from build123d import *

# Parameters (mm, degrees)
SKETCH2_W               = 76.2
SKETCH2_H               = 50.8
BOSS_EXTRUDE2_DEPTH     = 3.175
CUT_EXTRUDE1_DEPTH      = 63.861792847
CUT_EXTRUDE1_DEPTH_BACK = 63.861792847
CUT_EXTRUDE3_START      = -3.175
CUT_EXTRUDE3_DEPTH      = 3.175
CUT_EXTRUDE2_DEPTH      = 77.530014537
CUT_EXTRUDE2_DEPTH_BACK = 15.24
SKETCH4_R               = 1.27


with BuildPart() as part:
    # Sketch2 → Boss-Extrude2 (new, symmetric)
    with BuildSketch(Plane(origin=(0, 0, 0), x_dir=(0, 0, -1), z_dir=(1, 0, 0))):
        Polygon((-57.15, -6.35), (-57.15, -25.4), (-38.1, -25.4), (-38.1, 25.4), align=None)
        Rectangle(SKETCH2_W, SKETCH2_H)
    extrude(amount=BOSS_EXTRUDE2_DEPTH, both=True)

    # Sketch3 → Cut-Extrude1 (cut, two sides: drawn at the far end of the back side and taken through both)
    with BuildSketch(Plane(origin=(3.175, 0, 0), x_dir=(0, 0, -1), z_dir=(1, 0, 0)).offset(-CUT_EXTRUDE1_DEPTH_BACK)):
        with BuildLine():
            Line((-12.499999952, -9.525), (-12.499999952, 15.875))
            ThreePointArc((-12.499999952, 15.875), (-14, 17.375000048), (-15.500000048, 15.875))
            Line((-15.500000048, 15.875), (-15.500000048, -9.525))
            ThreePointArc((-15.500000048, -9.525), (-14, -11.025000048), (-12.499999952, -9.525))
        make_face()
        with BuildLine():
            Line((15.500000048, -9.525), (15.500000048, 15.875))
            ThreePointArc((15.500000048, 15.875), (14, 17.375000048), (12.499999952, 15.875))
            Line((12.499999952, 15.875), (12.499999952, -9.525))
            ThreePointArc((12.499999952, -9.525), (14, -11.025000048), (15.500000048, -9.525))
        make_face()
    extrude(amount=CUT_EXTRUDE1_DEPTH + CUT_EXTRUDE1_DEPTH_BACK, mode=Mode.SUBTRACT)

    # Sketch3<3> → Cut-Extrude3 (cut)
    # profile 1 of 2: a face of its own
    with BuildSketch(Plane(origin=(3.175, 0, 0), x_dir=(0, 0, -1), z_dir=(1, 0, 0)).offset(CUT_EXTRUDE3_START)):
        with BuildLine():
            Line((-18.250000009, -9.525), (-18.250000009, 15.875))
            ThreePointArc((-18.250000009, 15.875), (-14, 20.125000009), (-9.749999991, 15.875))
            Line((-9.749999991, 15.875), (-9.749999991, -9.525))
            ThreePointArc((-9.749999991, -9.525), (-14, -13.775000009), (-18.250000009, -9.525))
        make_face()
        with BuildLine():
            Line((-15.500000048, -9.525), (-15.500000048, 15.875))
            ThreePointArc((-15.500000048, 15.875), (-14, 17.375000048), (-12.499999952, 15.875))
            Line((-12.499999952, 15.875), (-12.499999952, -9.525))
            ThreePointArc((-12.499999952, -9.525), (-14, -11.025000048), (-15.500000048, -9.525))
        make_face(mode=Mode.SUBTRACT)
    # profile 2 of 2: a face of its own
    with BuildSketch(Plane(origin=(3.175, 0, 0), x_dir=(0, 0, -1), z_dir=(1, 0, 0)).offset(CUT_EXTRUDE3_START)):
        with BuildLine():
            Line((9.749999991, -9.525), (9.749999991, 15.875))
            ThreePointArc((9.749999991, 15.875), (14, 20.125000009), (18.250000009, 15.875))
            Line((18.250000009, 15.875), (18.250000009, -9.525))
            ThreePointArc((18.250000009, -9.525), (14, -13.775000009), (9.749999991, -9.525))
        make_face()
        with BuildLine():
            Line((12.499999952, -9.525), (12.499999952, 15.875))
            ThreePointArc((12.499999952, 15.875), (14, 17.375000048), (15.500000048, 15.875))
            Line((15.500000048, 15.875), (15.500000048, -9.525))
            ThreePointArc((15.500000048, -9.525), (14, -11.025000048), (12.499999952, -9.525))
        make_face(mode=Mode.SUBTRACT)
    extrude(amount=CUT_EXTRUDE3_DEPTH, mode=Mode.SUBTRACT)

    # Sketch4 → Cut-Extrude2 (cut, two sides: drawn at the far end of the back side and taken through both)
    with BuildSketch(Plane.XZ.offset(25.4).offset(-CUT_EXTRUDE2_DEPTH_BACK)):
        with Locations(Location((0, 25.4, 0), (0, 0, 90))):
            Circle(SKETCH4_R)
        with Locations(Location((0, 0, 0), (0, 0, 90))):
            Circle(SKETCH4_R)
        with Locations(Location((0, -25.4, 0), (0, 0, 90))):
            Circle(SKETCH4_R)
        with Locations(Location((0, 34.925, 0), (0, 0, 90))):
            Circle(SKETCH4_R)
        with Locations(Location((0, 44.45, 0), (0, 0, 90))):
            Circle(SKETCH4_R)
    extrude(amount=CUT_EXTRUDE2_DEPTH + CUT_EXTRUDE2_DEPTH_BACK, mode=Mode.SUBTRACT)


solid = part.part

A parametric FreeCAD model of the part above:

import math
import FreeCAD as App
import Part
import Sketcher

V = App.Vector
Q = App.Units.Quantity


def add_polygon(sketch, points):
    """Adds a closed chain of lines whose ends are joined by coincident constraints."""
    first, n = sketch.GeometryCount, len(points)
    for a, b in zip(points, points[1:] + points[:1]):
        sketch.addGeometry(Part.LineSegment(App.Vector(*a, 0), App.Vector(*b, 0)), False)
    for i in range(n):
        sketch.addConstraint(Sketcher.Constraint("Coincident", first + i, 2, first + (i + 1) % n, 1))

doc = App.newDocument("Part")
body = doc.addObject("PartDesign::Body", "Body")

# Sketch on YZ plane
sketch1 = doc.addObject("Sketcher::SketchObject", "Sketch")
body.addObject(sketch1)
sketch1.AttachmentSupport = (doc.YZ_Plane, [""])
sketch1.MapMode = "FlatFace"
add_polygon(sketch1, [(-6.35, 57.15), (-25.4, 57.15), (-25.4, -38.1), (25.4, -38.1), (25.4, 38.1)])  # lines 0-4
sketch1.addConstraint(Sketcher.Constraint("Horizontal", 0))
sketch1.addConstraint(Sketcher.Constraint("Vertical", 1))
sketch1.addConstraint(Sketcher.Constraint("Horizontal", 2))
sketch1.addConstraint(Sketcher.Constraint("Vertical", 3))
sketch1.addConstraint(Sketcher.Constraint("Symmetric", 1, 2, 3, 2, -1, 1))
sketch1.addConstraint(Sketcher.Constraint("DistanceX", 2, 1, 2, 2, Q("2 in")))
sketch1.addConstraint(Sketcher.Constraint("DistanceY", 3, 1, 3, 2, Q("3 in")))
sketch1.addConstraint(Sketcher.Constraint("DistanceX", 0, 2, 0, 1, Q("0.75 in")))
sketch1.addConstraint(Sketcher.Constraint("DistanceY", 1, 2, 1, 1, Q("3.75 in")))
pad1 = doc.addObject("PartDesign::Pad", "Pad")
body.addObject(pad1)
pad1.Profile = sketch1
pad1.Length = Q("0.25 in")
pad1.Midplane = True

# Sketch on YZ plane
sketch2 = doc.addObject("Sketcher::SketchObject", "Sketch001")
body.addObject(sketch2)
sketch2.AttachmentSupport = (doc.YZ_Plane, [""])
sketch2.MapMode = "FlatFace"
sketch2.AttachmentOffset = App.Placement(V(0, 0, 0.125 * 25.4), App.Rotation())
sketch2.addGeometry(Part.LineSegment(V(-9.525, 12.5, 0), V(15.875, 12.5, 0)), False)
sketch2.addGeometry(Part.ArcOfCircle(Part.Circle(V(15.875, 14, 0), V(0, 0, 1), 1.5), math.radians(-90), math.radians(90)), False)
sketch2.addGeometry(Part.LineSegment(V(15.875, 15.5, 0), V(-9.525, 15.5, 0)), False)
sketch2.addGeometry(Part.ArcOfCircle(Part.Circle(V(-9.525, 14, 0), V(0, 0, 1), 1.5), math.radians(90), math.radians(270)), False)
sketch2.addGeometry(Part.LineSegment(V(-9.525, -15.5, 0), V(15.875, -15.5, 0)), False)
sketch2.addGeometry(Part.ArcOfCircle(Part.Circle(V(15.875, -14, 0), V(0, 0, 1), 1.5), math.radians(-90), math.radians(90)), False)
sketch2.addGeometry(Part.LineSegment(V(15.875, -12.5, 0), V(-9.525, -12.5, 0)), False)
sketch2.addGeometry(Part.ArcOfCircle(Part.Circle(V(-9.525, -14, 0), V(0, 0, 1), 1.5), math.radians(90), math.radians(270)), False)
sketch2.addConstraint(Sketcher.Constraint("Tangent", 0, 2, 1, 1))
sketch2.addConstraint(Sketcher.Constraint("Tangent", 1, 2, 2, 1))
sketch2.addConstraint(Sketcher.Constraint("Tangent", 2, 2, 3, 1))
sketch2.addConstraint(Sketcher.Constraint("Tangent", 3, 2, 0, 1))
sketch2.addConstraint(Sketcher.Constraint("Tangent", 4, 2, 5, 1))
sketch2.addConstraint(Sketcher.Constraint("Tangent", 5, 2, 6, 1))
sketch2.addConstraint(Sketcher.Constraint("Tangent", 6, 2, 7, 1))
sketch2.addConstraint(Sketcher.Constraint("Tangent", 7, 2, 4, 1))
sketch2.addConstraint(Sketcher.Constraint("Horizontal", 0))
sketch2.addConstraint(Sketcher.Constraint("Horizontal", 2))
sketch2.addConstraint(Sketcher.Constraint("Horizontal", 4))
sketch2.addConstraint(Sketcher.Constraint("Horizontal", 6))
sketch2.addConstraint(Sketcher.Constraint("Equal", 3, 5))
sketch2.addConstraint(Sketcher.Constraint("Symmetric", 1, 3, 5, 3, -1))
sketch2.addConstraint(Sketcher.Constraint("Vertical", 3, 3, 7, 3))
sketch2.addConstraint(Sketcher.Constraint("DistanceX", 0, 1, 0, 2, Q("1 in")))
sketch2.addConstraint(Sketcher.Constraint("Radius", 1, 1.5))
sketch2.addConstraint(Sketcher.Constraint("DistanceX", -1, 1, 1, 3, Q("0.625 in")))
sketch2.addConstraint(Sketcher.Constraint("DistanceY", -1, 1, 1, 3, 14.0))
pocket1 = doc.addObject("PartDesign::Pocket", "Pocket")
body.addObject(pocket1)
pocket1.Profile = sketch2
pocket1.Type = "ThroughAll"
pocket1.Midplane = True

# Sketch on YZ plane
sketch3 = doc.addObject("Sketcher::SketchObject", "Sketch002")
body.addObject(sketch3)
sketch3.AttachmentSupport = (doc.YZ_Plane, [""])
sketch3.MapMode = "FlatFace"
sketch3.addGeometry(Part.LineSegment(V(15.875, 18.25, 0), V(-9.525, 18.25, 0)), False)
sketch3.addGeometry(Part.ArcOfCircle(Part.Circle(V(-9.525, 14, 0), V(0, 0, 1), 4.25), math.radians(90), math.radians(270)), False)
sketch3.addGeometry(Part.LineSegment(V(-9.525, 9.75, 0), V(15.875, 9.75, 0)), False)
sketch3.addGeometry(Part.ArcOfCircle(Part.Circle(V(15.875, 14, 0), V(0, 0, 1), 4.25), math.radians(-90), math.radians(90)), False)
sketch3.addGeometry(Part.LineSegment(V(-9.525, 15.5, 0), V(15.875, 15.5, 0)), False)
sketch3.addGeometry(Part.ArcOfCircle(Part.Circle(V(15.875, 14, 0), V(0, 0, 1), 1.5), math.radians(-90), math.radians(90)), False)
sketch3.addGeometry(Part.LineSegment(V(15.875, 12.5, 0), V(-9.525, 12.5, 0)), False)
sketch3.addGeometry(Part.ArcOfCircle(Part.Circle(V(-9.525, 14, 0), V(0, 0, 1), 1.5), math.radians(90), math.radians(270)), False)
sketch3.addGeometry(Part.LineSegment(V(15.875, -9.75, 0), V(-9.525, -9.75, 0)), False)
sketch3.addGeometry(Part.ArcOfCircle(Part.Circle(V(-9.525, -14, 0), V(0, 0, 1), 4.25), math.radians(90), math.radians(270)), False)
sketch3.addGeometry(Part.LineSegment(V(-9.525, -18.25, 0), V(15.875, -18.25, 0)), False)
sketch3.addGeometry(Part.ArcOfCircle(Part.Circle(V(15.875, -14, 0), V(0, 0, 1), 4.25), math.radians(-90), math.radians(90)), False)
sketch3.addGeometry(Part.LineSegment(V(-9.525, -12.5, 0), V(15.875, -12.5, 0)), False)
sketch3.addGeometry(Part.ArcOfCircle(Part.Circle(V(15.875, -14, 0), V(0, 0, 1), 1.5), math.radians(-90), math.radians(90)), False)
sketch3.addGeometry(Part.LineSegment(V(15.875, -15.5, 0), V(-9.525, -15.5, 0)), False)
sketch3.addGeometry(Part.ArcOfCircle(Part.Circle(V(-9.525, -14, 0), V(0, 0, 1), 1.5), math.radians(90), math.radians(270)), False)
sketch3.addConstraint(Sketcher.Constraint("Tangent", 0, 2, 1, 1))
sketch3.addConstraint(Sketcher.Constraint("Tangent", 1, 2, 2, 1))
sketch3.addConstraint(Sketcher.Constraint("Tangent", 2, 2, 3, 1))
sketch3.addConstraint(Sketcher.Constraint("Tangent", 3, 2, 0, 1))
sketch3.addConstraint(Sketcher.Constraint("Tangent", 4, 2, 5, 2))
sketch3.addConstraint(Sketcher.Constraint("Tangent", 5, 1, 6, 1))
sketch3.addConstraint(Sketcher.Constraint("Tangent", 6, 2, 7, 2))
sketch3.addConstraint(Sketcher.Constraint("Tangent", 7, 1, 4, 1))
sketch3.addConstraint(Sketcher.Constraint("Tangent", 8, 2, 9, 1))
sketch3.addConstraint(Sketcher.Constraint("Tangent", 9, 2, 10, 1))
sketch3.addConstraint(Sketcher.Constraint("Tangent", 10, 2, 11, 1))
sketch3.addConstraint(Sketcher.Constraint("Tangent", 11, 2, 8, 1))
sketch3.addConstraint(Sketcher.Constraint("Tangent", 12, 2, 13, 2))
sketch3.addConstraint(Sketcher.Constraint("Tangent", 13, 1, 14, 1))
sketch3.addConstraint(Sketcher.Constraint("Tangent", 14, 2, 15, 2))
sketch3.addConstraint(Sketcher.Constraint("Tangent", 15, 1, 12, 1))
sketch3.addConstraint(Sketcher.Constraint("Horizontal", 0))
sketch3.addConstraint(Sketcher.Constraint("Horizontal", 2))
sketch3.addConstraint(Sketcher.Constraint("Horizontal", 4))
sketch3.addConstraint(Sketcher.Constraint("Horizontal", 6))
sketch3.addConstraint(Sketcher.Constraint("Horizontal", 8))
sketch3.addConstraint(Sketcher.Constraint("Horizontal", 10))
sketch3.addConstraint(Sketcher.Constraint("Horizontal", 12))
sketch3.addConstraint(Sketcher.Constraint("Horizontal", 14))
sketch3.addConstraint(Sketcher.Constraint("Coincident", 5, 3, 3, 3))
sketch3.addConstraint(Sketcher.Constraint("Coincident", 13, 3, 11, 3))
sketch3.addConstraint(Sketcher.Constraint("Equal", 3, 9))
sketch3.addConstraint(Sketcher.Constraint("Equal", 7, 13))
sketch3.addConstraint(Sketcher.Constraint("Symmetric", 1, 3, 9, 3, -1))
sketch3.addConstraint(Sketcher.Constraint("Vertical", 7, 3, 9, 3))
sketch3.addConstraint(Sketcher.Constraint("Vertical", 5, 3, 11, 3))
sketch3.addConstraint(Sketcher.Constraint("Vertical", 7, 3, 15, 3))
sketch3.addConstraint(Sketcher.Constraint("DistanceX", 0, 2, 0, 1, Q("1 in")))
sketch3.addConstraint(Sketcher.Constraint("Radius", 1, 4.25))
sketch3.addConstraint(Sketcher.Constraint("Radius", 5, 1.5))
sketch3.addConstraint(Sketcher.Constraint("DistanceX", 1, 3, -1, 1, Q("0.375 in")))
sketch3.addConstraint(Sketcher.Constraint("DistanceY", -1, 1, 1, 3, 14.0))
pocket2 = doc.addObject("PartDesign::Pocket", "Pocket001")
body.addObject(pocket2)
pocket2.Profile = sketch3
pocket2.Length = Q("0.125 in")
pocket2.Reversed = True

# Sketch on XZ plane
sketch4 = doc.addObject("Sketcher::SketchObject", "Sketch003")
body.addObject(sketch4)
sketch4.AttachmentSupport = (doc.XZ_Plane, [""])
sketch4.MapMode = "FlatFace"
sketch4.AttachmentOffset = App.Placement(V(0, 0, 1 * 25.4), App.Rotation())
sketch4.addGeometry(Part.Circle(V(0, 25.4, 0), V(0, 0, 1), 1.27), False)
sketch4.addGeometry(Part.Circle(V(0, 0, 0), V(0, 0, 1), 1.27), False)
sketch4.addGeometry(Part.Circle(V(0, -25.4, 0), V(0, 0, 1), 1.27), False)
sketch4.addGeometry(Part.Circle(V(0, 34.925, 0), V(0, 0, 1), 1.27), False)
sketch4.addGeometry(Part.Circle(V(0, 44.45, 0), V(0, 0, 1), 1.27), False)
sketch4.addConstraint(Sketcher.Constraint("Coincident", 1, 3, -1, 1))
sketch4.addConstraint(Sketcher.Constraint("Equal", 0, 1))
sketch4.addConstraint(Sketcher.Constraint("Equal", 1, 2))
sketch4.addConstraint(Sketcher.Constraint("Equal", 2, 3))
sketch4.addConstraint(Sketcher.Constraint("Equal", 3, 4))
sketch4.addConstraint(Sketcher.Constraint("Symmetric", 0, 3, 2, 3, -1, 1))
sketch4.addConstraint(Sketcher.Constraint("PointOnObject", 0, 3, -2))
sketch4.addConstraint(Sketcher.Constraint("PointOnObject", 3, 3, -2))
sketch4.addConstraint(Sketcher.Constraint("PointOnObject", 4, 3, -2))
sketch4.addConstraint(Sketcher.Constraint("Diameter", 0, Q("0.1 in")))
sketch4.addConstraint(Sketcher.Constraint("DistanceY", -1, 1, 0, 3, Q("1 in")))
sketch4.addConstraint(Sketcher.Constraint("DistanceY", -1, 1, 4, 3, Q("1.75 in")))
sketch4.addConstraint(Sketcher.Constraint("DistanceY", -1, 1, 3, 3, Q("1.375 in")))
pocket3 = doc.addObject("PartDesign::Pocket", "Pocket002")
body.addObject(pocket3)
pocket3.Profile = sketch4
pocket3.Type = "TwoLengths"
pocket3.Length = 77.530015
pocket3.Length2 = Q("0.6 in")
pocket3.Reversed = True

doc.recompute()
